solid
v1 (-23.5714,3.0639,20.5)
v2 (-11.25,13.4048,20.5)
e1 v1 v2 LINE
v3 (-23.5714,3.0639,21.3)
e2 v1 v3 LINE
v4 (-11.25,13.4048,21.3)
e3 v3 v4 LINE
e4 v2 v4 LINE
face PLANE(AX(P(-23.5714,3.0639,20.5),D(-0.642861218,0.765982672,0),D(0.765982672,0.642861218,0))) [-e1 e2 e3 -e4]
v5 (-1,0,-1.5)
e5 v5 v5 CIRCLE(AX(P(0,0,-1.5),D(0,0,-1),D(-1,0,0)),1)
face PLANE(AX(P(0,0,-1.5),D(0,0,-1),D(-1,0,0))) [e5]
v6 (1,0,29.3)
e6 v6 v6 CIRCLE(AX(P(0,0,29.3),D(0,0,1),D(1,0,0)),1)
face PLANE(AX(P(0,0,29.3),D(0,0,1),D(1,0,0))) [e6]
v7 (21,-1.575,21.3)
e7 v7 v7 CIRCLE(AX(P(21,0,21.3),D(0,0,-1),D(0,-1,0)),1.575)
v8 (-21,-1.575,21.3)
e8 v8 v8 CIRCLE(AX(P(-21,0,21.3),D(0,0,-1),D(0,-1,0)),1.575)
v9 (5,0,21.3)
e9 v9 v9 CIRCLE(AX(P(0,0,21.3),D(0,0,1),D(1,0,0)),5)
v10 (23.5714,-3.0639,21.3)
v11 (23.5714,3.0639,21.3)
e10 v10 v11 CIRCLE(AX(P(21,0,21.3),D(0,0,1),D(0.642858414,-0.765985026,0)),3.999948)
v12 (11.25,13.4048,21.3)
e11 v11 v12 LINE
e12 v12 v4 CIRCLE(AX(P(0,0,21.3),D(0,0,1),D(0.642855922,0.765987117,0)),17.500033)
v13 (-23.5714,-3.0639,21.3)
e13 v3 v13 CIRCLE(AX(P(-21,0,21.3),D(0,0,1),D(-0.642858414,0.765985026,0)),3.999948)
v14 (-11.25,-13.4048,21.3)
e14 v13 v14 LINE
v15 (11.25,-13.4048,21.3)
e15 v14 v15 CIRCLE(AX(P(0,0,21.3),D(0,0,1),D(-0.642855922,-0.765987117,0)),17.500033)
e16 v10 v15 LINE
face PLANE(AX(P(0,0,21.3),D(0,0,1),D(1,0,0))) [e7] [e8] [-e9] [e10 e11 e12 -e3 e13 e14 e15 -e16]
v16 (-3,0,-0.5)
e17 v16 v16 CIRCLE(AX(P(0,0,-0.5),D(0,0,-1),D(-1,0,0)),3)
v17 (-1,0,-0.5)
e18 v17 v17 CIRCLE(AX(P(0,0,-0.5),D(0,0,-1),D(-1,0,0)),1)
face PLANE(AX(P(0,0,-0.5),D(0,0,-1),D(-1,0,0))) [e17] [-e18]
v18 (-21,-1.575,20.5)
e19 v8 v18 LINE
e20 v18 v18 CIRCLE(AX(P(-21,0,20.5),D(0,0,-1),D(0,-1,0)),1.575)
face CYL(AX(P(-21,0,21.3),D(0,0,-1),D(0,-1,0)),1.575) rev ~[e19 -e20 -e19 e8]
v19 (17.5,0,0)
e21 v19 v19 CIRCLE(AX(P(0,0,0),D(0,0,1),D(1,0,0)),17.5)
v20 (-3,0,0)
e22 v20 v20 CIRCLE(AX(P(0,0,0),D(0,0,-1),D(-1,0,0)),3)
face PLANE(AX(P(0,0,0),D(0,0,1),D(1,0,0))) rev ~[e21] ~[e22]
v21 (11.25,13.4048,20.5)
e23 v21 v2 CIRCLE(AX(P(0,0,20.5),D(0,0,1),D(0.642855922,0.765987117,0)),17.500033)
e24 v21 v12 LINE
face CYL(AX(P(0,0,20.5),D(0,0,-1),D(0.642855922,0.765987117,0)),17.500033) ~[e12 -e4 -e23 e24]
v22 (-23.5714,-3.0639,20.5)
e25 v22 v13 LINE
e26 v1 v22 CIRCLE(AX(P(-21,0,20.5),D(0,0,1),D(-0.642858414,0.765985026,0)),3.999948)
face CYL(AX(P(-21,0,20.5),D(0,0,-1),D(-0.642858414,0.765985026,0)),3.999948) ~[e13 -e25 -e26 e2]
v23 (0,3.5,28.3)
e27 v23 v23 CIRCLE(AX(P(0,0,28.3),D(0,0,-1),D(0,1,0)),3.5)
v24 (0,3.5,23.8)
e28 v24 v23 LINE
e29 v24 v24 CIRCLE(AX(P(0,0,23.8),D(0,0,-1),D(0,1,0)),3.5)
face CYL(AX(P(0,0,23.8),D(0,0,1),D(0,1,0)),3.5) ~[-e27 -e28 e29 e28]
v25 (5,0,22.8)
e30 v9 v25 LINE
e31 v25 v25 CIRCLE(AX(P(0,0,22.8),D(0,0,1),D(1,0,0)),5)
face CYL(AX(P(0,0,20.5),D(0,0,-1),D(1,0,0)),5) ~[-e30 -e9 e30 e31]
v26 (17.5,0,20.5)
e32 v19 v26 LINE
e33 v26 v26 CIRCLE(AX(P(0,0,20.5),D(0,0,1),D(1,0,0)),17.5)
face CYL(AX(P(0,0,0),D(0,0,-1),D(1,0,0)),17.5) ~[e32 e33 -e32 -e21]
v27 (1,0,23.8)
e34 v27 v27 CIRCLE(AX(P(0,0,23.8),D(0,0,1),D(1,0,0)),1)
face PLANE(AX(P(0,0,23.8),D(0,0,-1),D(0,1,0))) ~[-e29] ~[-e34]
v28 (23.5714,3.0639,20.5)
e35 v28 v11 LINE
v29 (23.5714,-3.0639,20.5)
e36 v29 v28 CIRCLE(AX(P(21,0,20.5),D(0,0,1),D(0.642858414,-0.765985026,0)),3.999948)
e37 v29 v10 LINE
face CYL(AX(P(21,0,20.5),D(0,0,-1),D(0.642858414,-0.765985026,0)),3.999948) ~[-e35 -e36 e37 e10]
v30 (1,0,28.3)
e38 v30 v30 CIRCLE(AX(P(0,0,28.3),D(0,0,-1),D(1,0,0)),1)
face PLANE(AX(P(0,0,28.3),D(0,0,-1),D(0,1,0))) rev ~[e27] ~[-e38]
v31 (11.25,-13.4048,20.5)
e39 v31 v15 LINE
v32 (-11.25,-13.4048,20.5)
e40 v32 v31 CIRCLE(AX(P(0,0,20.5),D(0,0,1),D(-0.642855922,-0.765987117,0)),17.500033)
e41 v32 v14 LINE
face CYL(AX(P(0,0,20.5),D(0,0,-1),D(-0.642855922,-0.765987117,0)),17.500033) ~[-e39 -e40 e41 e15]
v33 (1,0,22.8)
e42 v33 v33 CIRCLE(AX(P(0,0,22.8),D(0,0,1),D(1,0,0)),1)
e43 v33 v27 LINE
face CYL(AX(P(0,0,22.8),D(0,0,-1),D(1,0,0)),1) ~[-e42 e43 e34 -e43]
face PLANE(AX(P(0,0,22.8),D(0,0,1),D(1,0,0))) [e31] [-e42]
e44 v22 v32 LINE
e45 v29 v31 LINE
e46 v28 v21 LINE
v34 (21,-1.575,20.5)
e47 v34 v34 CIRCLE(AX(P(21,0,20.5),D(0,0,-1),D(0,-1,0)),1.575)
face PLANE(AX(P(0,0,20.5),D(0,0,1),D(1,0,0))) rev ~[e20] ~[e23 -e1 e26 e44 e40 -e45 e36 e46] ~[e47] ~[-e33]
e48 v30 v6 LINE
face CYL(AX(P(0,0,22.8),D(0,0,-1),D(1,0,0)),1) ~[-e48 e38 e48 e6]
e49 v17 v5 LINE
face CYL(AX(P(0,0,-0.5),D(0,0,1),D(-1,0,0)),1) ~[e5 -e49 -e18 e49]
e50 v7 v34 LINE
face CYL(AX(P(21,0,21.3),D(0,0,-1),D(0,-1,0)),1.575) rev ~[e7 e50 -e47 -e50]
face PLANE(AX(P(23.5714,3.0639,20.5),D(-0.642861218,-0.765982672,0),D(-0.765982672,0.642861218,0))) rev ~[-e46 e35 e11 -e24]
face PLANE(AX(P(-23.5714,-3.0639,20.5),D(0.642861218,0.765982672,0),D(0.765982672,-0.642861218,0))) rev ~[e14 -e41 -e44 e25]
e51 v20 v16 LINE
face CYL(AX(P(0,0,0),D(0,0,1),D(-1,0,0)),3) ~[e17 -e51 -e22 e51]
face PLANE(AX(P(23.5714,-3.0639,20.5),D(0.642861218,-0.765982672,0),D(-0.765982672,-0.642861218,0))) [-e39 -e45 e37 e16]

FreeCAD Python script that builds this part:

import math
import FreeCAD as App
import Part
import Sketcher
Q = App.Units.Quantity


def add_polygon(sketch, points):
    """Adds a closed chain of lines whose ends are joined by coincident constraints."""
    first, n = sketch.GeometryCount, len(points)
    for a, b in zip(points, points[1:] + points[:1]):
        sketch.addGeometry(Part.LineSegment(App.Vector(*a, 0), App.Vector(*b, 0)), False)
    for i in range(n):
        sketch.addConstraint(Sketcher.Constraint("Coincident", first + i, 2, first + (i + 1) % n, 1))

doc = App.newDocument("Part")
body = doc.addObject("PartDesign::Body", "Body")

# Sketch on XY plane
sketch1 = doc.addObject("Sketcher::SketchObject", "Sketch")
body.addObject(sketch1)
sketch1.AttachmentSupport = (doc.XY_Plane, [""])
sketch1.MapMode = "FlatFace"
sketch1.addGeometry(Part.Circle(App.Vector(0, 0, 0), App.Vector(0, 0, 1), 18), False)
sketch1.addConstraint(Sketcher.Constraint("Coincident", 0, 3, -1, 1))
sketch1.addConstraint(Sketcher.Constraint("Diameter", 0, Q("35 mm")))
pad1 = doc.addObject("PartDesign::Pad", "Pad")
body.addObject(pad1)
pad1.Profile = sketch1
pad1.Length = 20.5

# Sketch on XY plane
sketch2 = doc.addObject("Sketcher::SketchObject", "Sketch001")
body.addObject(sketch2)
sketch2.AttachmentSupport = (doc.XY_Plane, [""])
sketch2.MapMode = "FlatFace"
sketch2.AttachmentOffset = App.Placement(App.Vector(0, 0, 20.5), App.Rotation())
sketch2.addGeometry(Part.Circle(App.Vector(0, 0, 0), App.Vector(0, 0, 1), 5), False)
sketch2.addConstraint(Sketcher.Constraint("Coincident", 0, 3, -1, 1))
sketch2.addConstraint(Sketcher.Constraint("Diameter", 0, Q("10 mm")))
pad2 = doc.addObject("PartDesign::Pad", "Pad001")
body.addObject(pad2)
pad2.Profile = sketch2
pad2.Length = 2.3

# Sketch on XY plane
sketch3 = doc.addObject("Sketcher::SketchObject", "Sketch002")
body.addObject(sketch3)
sketch3.AttachmentSupport = (doc.XY_Plane, [""])
sketch3.MapMode = "FlatFace"
sketch3.AttachmentOffset = App.Placement(App.Vector(0, 0, 22.8), App.Rotation())
sketch3.addGeometry(Part.Circle(App.Vector(0, 0, 0), App.Vector(0, 0, 1), 1), False)
sketch3.addConstraint(Sketcher.Constraint("Coincident", 0, 3, -1, 1))
sketch3.addConstraint(Sketcher.Constraint("Diameter", 0, Q("2 mm")))
pad3 = doc.addObject("PartDesign::Pad", "Pad002")
body.addObject(pad3)
pad3.Profile = sketch3
pad3.Length = 6.5

# Sketch on XY plane
sketch4 = doc.addObject("Sketcher::SketchObject", "Sketch003")
body.addObject(sketch4)
sketch4.AttachmentSupport = (doc.XY_Plane, [""])
sketch4.MapMode = "FlatFace"
sketch4.addGeometry(Part.Circle(App.Vector(0, 0, 0), App.Vector(0, 0, 1), 3), False)
sketch4.addConstraint(Sketcher.Constraint("Coincident", 0, 3, -1, 1))
sketch4.addConstraint(Sketcher.Constraint("Diameter", 0, Q("6 mm")))
pad4 = doc.addObject("PartDesign::Pad", "Pad003")
body.addObject(pad4)
pad4.Profile = sketch4
pad4.Length = 0.5
pad4.Reversed = True

# Sketch on XY plane
sketch5 = doc.addObject("Sketcher::SketchObject", "Sketch004")
body.addObject(sketch5)
sketch5.AttachmentSupport = (doc.XY_Plane, [""])
sketch5.MapMode = "FlatFace"
sketch5.AttachmentOffset = App.Placement(App.Vector(0, 0, 20.5), App.Rotation())
sketch5.addGeometry(Part.ArcOfCircle(Part.Circle(App.Vector(-21, 0, 0), App.Vector(0, 0, 1), 4), math.radians(130), math.radians(230)), False)
sketch5.addGeometry(Part.LineSegment(App.Vector(-23.6, -3.1, 0), App.Vector(-11.2, -13.4, 0)), False)
sketch5.addGeometry(Part.ArcOfCircle(Part.Circle(App.Vector(0, 0, 0), App.Vector(0, 0, 1), 17.5), math.radians(-130), math.radians(-50)), False)
sketch5.addGeometry(Part.LineSegment(App.Vector(11.2, -13.4, 0), App.Vector(23.6, -3.1, 0)), False)
sketch5.addGeometry(Part.ArcOfCircle(Part.Circle(App.Vector(21, 0, 0), App.Vector(0, 0, 1), 4), math.radians(-50), math.radians(50)), False)
sketch5.addGeometry(Part.LineSegment(App.Vector(23.6, 3.1, 0), App.Vector(11.2, 13.4, 0)), False)
sketch5.addGeometry(Part.ArcOfCircle(Part.Circle(App.Vector(0, 0, 0), App.Vector(0, 0, 1), 17.5), math.radians(50), math.radians(130)), False)
sketch5.addGeometry(Part.LineSegment(App.Vector(-11.2, 13.4, 0), App.Vector(-23.6, 3.1, 0)), False)
sketch5.addGeometry(Part.Circle(App.Vector(0, 0, 0), App.Vector(0, 0, 1), 5), False)
sketch5.addConstraint(Sketcher.Constraint("Tangent", 0, 2, 1, 1))
sketch5.addConstraint(Sketcher.Constraint("Tangent", 1, 2, 2, 1))
sketch5.addConstraint(Sketcher.Constraint("Tangent", 2, 2, 3, 1))
sketch5.addConstraint(Sketcher.Constraint("Tangent", 3, 2, 4, 1))
sketch5.addConstraint(Sketcher.Constraint("Tangent", 4, 2, 5, 1))
sketch5.addConstraint(Sketcher.Constraint("Tangent", 5, 2, 6, 1))
sketch5.addConstraint(Sketcher.Constraint("Tangent", 6, 2, 7, 1))
sketch5.addConstraint(Sketcher.Constraint("Tangent", 7, 2, 0, 1))
sketch5.addConstraint(Sketcher.Constraint("Coincident", 2, 3, -1, 1))
sketch5.addConstraint(Sketcher.Constraint("Coincident", 6, 3, -1, 1))
sketch5.addConstraint(Sketcher.Constraint("Coincident", 8, 3, -1, 1))
sketch5.addConstraint(Sketcher.Constraint("Equal", 0, 4))
sketch5.addConstraint(Sketcher.Constraint("Equal", 2, 6))
sketch5.addConstraint(Sketcher.Constraint("Symmetric", 0, 3, 4, 3, -1, 1))
sketch5.addConstraint(Sketcher.Constraint("PointOnObject", 0, 3, -1))
sketch5.addConstraint(Sketcher.Constraint("Diameter", 8, Q("10 mm")))
sketch5.addConstraint(Sketcher.Constraint("Radius", 0, Q("4 mm")))
sketch5.addConstraint(Sketcher.Constraint("DistanceX", 0, 3, 4, 3, Q("42 mm")))
sketch5.addConstraint(Sketcher.Constraint("Radius", 2, Q("17.5 mm")))
pad5 = doc.addObject("PartDesign::Pad", "Pad004")
body.addObject(pad5)
pad5.Profile = sketch5
pad5.Length = 0.8

# Sketch on XY plane
sketch6 = doc.addObject("Sketcher::SketchObject", "Sketch005")
body.addObject(sketch6)
sketch6.AttachmentSupport = (doc.XY_Plane, [""])
sketch6.MapMode = "FlatFace"
sketch6.AttachmentOffset = App.Placement(App.Vector(0, 0, 21.3), App.Rotation())
sketch6.addGeometry(Part.Circle(App.Vector(-21, 0, 0), App.Vector(0, 0, 1), 1.6), False)
sketch6.addGeometry(Part.Circle(App.Vector(21, 0, 0), App.Vector(0, 0, 1), 1.6), False)
sketch6.addConstraint(Sketcher.Constraint("Equal", 0, 1))
sketch6.addConstraint(Sketcher.Constraint("Symmetric", 0, 3, 1, 3, -1, 1))
sketch6.addConstraint(Sketcher.Constraint("PointOnObject", 0, 3, -1))
sketch6.addConstraint(Sketcher.Constraint("Diameter", 0, Q("3.15 mm")))
sketch6.addConstraint(Sketcher.Constraint("DistanceX", 0, 3, -1, 1, Q("21 mm")))
doc.recompute()
hole = doc.addObject("PartDesign::Hole", "Hole")
body.addObject(hole)
hole.Profile = sketch6
hole.ThreadType = "None"
hole.Diameter = 3.15
hole.DepthType = "ThroughAll"

# Sketch on XY plane
sketch7 = doc.addObject("Sketcher::SketchObject", "Sketch006")
body.addObject(sketch7)
sketch7.AttachmentSupport = (doc.XY_Plane, [""])
sketch7.MapMode = "FlatFace"
sketch7.AttachmentOffset = App.Placement(App.Vector(0, 0, -0.5), App.Rotation())
sketch7.addGeometry(Part.Circle(App.Vector(0, 0, 0), App.Vector(0, 0, 1), 1), False)
sketch7.addConstraint(Sketcher.Constraint("Coincident", 0, 3, -1, 1))
sketch7.addConstraint(Sketcher.Constraint("Diameter", 0, Q("2 mm")))
pad6 = doc.addObject("PartDesign::Pad", "Pad005")
body.addObject(pad6)
pad6.Profile = sketch7
pad6.Length = 1
pad6.Reversed = True

# Sketch on YZ plane
sketch8 = doc.addObject("Sketcher::SketchObject", "Sketch007")
body.addObject(sketch8)
sketch8.AttachmentSupport = (doc.YZ_Plane, [""])
sketch8.MapMode = "FlatFace"
add_polygon(sketch8, [(3.5, 28.3), (1, 28.3), (1, 23.8), (3.5, 23.8)])  # lines 0-3
sketch8.addConstraint(Sketcher.Constraint("Horizontal", 0))
sketch8.addConstraint(Sketcher.Constraint("Vertical", 1))
sketch8.addConstraint(Sketcher.Constraint("Horizontal", 2))
sketch8.addConstraint(Sketcher.Constraint("Vertical", 3))
sketch8.addConstraint(Sketcher.Constraint("DistanceY", 1, 2, 1, 1, Q("4.5 mm")))
sketch8.addConstraint(Sketcher.Constraint("DistanceX", -1, 1, 0, 2, Q("1 mm")))
sketch8.addConstraint(Sketcher.Constraint("DistanceX", 0, 2, 0, 1, Q("2.5 mm")))
sketch8.addConstraint(Sketcher.Constraint("DistanceY", -1, 1, 0, 2, Q("28.3 mm")))
revolution = doc.addObject("PartDesign::Revolution", "Revolution")
body.addObject(revolution)
revolution.Profile = sketch8
revolution.ReferenceAxis = (sketch8, ["V_Axis"])
revolution.Angle = 360

doc.recompute()
